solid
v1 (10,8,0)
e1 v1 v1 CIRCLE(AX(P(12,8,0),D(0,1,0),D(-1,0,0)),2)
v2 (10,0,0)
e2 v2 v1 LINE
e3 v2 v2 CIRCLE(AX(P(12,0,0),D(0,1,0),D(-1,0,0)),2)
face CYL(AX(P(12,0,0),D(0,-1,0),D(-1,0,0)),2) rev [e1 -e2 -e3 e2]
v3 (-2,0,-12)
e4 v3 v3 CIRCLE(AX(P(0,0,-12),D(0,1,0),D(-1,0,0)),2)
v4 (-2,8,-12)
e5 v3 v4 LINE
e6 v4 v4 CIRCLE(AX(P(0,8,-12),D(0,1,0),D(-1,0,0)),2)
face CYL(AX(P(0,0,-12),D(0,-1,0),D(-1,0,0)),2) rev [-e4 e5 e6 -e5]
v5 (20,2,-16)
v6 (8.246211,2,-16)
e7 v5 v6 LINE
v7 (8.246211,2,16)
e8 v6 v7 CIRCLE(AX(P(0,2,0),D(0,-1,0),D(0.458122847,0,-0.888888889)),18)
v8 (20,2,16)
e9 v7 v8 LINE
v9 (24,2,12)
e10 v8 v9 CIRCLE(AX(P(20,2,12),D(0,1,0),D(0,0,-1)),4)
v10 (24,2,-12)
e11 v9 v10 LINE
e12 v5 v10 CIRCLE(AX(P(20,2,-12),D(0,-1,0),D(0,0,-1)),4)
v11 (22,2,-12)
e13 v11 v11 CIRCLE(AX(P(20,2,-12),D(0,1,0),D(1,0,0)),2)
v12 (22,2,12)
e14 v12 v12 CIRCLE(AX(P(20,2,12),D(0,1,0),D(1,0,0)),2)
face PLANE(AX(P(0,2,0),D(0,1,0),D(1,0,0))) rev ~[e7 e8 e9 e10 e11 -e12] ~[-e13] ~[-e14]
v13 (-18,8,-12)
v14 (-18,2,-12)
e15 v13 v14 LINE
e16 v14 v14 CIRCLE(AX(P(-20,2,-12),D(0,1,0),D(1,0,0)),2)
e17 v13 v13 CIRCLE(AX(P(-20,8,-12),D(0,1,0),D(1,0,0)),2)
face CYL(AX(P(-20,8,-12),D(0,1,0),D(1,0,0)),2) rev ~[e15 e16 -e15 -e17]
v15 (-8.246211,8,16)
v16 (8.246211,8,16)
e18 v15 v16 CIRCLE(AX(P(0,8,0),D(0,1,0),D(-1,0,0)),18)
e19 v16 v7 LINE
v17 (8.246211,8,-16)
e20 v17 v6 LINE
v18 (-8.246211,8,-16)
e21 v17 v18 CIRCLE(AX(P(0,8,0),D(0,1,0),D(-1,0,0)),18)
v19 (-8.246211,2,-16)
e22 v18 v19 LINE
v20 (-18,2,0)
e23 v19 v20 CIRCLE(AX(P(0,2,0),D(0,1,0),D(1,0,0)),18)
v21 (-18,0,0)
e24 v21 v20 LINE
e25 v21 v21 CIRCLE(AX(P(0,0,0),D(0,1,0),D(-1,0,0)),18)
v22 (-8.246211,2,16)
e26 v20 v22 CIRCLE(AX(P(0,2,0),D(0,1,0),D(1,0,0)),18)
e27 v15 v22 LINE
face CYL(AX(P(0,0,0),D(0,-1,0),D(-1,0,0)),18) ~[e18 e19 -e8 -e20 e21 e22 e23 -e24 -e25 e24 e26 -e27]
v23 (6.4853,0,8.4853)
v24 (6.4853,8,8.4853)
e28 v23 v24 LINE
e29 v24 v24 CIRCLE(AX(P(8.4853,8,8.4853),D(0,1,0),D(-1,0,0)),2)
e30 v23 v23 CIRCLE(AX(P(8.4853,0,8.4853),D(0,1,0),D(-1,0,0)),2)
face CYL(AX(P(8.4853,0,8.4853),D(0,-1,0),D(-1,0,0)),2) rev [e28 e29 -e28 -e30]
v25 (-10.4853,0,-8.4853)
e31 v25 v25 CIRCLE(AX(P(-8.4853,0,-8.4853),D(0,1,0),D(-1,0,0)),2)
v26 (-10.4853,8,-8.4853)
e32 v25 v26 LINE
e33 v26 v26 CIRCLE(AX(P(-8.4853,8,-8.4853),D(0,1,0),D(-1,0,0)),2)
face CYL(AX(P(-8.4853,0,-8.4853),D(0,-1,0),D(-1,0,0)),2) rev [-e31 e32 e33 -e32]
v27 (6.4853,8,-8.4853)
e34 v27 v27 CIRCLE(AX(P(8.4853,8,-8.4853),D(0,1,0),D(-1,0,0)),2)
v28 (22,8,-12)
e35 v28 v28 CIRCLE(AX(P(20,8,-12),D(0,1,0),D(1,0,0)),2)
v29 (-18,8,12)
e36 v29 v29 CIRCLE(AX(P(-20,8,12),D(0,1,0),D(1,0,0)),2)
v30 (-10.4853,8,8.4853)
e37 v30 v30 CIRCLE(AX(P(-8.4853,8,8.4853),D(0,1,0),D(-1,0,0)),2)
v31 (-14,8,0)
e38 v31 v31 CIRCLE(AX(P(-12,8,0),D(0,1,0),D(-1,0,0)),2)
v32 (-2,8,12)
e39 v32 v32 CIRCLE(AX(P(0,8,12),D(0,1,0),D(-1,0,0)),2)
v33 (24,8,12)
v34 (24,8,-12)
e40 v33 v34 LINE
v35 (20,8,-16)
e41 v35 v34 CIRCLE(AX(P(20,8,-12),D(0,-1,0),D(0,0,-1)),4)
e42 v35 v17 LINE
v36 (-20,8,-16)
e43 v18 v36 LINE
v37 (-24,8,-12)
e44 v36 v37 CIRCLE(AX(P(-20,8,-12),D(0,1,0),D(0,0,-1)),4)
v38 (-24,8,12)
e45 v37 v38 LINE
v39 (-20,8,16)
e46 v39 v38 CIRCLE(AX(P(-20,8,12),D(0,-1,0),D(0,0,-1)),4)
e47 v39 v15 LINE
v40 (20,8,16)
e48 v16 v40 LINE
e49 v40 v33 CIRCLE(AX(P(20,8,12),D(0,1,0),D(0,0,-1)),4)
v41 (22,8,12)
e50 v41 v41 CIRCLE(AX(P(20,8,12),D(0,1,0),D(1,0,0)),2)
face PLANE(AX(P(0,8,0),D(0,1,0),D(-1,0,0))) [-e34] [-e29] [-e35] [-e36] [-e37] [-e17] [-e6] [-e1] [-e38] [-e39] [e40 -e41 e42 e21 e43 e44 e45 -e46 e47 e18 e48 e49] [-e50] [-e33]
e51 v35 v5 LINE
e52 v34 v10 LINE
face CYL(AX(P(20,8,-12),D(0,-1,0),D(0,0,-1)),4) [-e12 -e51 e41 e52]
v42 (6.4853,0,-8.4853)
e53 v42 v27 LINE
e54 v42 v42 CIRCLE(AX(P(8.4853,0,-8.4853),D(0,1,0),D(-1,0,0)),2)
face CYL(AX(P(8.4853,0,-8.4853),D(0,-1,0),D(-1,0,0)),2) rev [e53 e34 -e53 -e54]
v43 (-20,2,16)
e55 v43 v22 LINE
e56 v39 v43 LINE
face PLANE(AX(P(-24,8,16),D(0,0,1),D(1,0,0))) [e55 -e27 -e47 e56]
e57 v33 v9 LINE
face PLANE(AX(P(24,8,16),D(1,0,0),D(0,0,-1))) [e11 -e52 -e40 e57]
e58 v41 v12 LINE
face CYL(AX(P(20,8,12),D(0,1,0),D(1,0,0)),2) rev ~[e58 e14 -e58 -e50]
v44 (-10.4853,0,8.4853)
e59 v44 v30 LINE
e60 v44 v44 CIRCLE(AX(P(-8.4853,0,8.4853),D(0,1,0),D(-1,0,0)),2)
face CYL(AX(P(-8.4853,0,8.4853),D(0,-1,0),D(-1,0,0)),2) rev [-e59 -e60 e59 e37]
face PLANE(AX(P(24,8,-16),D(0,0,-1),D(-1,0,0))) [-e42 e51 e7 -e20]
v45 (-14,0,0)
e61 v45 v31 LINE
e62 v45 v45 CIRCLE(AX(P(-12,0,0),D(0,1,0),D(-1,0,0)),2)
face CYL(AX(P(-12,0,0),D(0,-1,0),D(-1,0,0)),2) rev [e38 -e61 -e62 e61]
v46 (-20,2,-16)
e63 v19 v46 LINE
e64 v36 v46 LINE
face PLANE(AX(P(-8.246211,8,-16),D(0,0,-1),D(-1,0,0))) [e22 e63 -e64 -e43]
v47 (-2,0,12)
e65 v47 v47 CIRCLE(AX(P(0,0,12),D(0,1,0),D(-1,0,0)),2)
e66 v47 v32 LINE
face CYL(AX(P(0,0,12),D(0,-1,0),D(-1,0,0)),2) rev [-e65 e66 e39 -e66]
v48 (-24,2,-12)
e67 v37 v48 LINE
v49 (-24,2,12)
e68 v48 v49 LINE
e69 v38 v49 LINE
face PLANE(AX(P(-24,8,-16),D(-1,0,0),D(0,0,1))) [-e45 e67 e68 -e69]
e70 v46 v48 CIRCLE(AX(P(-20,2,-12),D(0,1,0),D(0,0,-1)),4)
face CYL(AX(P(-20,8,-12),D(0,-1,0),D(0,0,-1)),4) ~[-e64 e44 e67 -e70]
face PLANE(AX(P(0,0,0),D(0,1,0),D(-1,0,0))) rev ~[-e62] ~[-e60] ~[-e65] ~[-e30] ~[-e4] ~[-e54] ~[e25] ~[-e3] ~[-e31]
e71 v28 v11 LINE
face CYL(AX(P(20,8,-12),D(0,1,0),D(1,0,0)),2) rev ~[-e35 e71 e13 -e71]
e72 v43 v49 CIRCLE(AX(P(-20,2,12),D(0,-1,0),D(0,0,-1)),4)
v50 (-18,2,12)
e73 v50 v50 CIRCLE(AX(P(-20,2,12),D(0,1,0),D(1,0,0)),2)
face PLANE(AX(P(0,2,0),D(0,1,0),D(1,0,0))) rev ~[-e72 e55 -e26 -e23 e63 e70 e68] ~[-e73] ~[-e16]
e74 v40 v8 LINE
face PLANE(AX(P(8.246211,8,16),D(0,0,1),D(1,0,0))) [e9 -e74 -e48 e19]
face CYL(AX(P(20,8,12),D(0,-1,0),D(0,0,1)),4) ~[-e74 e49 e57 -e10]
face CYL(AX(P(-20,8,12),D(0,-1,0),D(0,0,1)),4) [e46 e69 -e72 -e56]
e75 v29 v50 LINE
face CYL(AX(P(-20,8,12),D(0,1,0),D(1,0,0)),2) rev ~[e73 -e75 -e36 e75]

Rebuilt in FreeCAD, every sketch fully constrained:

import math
import FreeCAD as App
import Part
import Sketcher

V = App.Vector
Q = App.Units.Quantity


def edges_at(feature, points):
    """Names of the edges that pass closest to the given points."""
    edges = feature.Shape.Edges
    near = lambda p: min(range(len(edges)), key=lambda i: edges[i].distToShape(Part.Vertex(*p))[0])
    return sorted({f"Edge{near(p) + 1}" for p in points})

doc = App.newDocument("Part")
params = doc.addObject("Spreadsheet::Sheet", "Params")
for row, (alias, value) in enumerate([
    ("sketch1_diameter", "36 mm"),
    ("sketch1_diameter2", "4 mm"),
    ("pad1_length", "8 mm"),
    ("sketch2_diameter", "4 mm"),
    ("sketch2_height", "32 mm"),
    ("sketch2_radius", "18 mm"),
    ("pad2_length", "6 mm"),
    ("fillet_radius", "4 mm"),
], start=1):
    params.set(f"A{row}", alias)
    params.set(f"B{row}", "=" + value)
    params.setAlias(f"B{row}", alias)

body = doc.addObject("PartDesign::Body", "Body")

sketch1 = doc.addObject("Sketcher::SketchObject", "Sketch")
body.addObject(sketch1)
sketch1.AttachmentSupport = (doc.XZ_Plane, [""])
sketch1.MapMode = "FlatFace"
sketch1.addGeometry(Part.Circle(V(0, 0, 0), V(0, 0, 1), 18), False)
sketch1.addGeometry(Part.Circle(V(8.5, -8.5, 0), V(0, 0, 1), 2), False)
sketch1.addGeometry(Part.Circle(V(0, -12, 0), V(0, 0, 1), 2), False)
sketch1.addGeometry(Part.Circle(V(-8.5, -8.5, 0), V(0, 0, 1), 2), False)
sketch1.addGeometry(Part.Circle(V(12, 0, 0), V(0, 0, 1), 2), False)
sketch1.addGeometry(Part.Circle(V(8.5, 8.5, 0), V(0, 0, 1), 2), False)
sketch1.addGeometry(Part.Circle(V(-8.5, 8.5, 0), V(0, 0, 1), 2), False)
sketch1.addGeometry(Part.Circle(V(-12, 0, 0), V(0, 0, 1), 2), False)
sketch1.addGeometry(Part.Circle(V(0, 12, 0), V(0, 0, 1), 2), False)
sketch1.addConstraint(Sketcher.Constraint("Coincident", 0, 3, -1, 1))
sketch1.addConstraint(Sketcher.Constraint("Equal", 1, 2))
sketch1.addConstraint(Sketcher.Constraint("Equal", 2, 3))
sketch1.addConstraint(Sketcher.Constraint("Equal", 3, 4))
sketch1.addConstraint(Sketcher.Constraint("Equal", 4, 5))
sketch1.addConstraint(Sketcher.Constraint("Equal", 5, 6))
sketch1.addConstraint(Sketcher.Constraint("Equal", 6, 7))
sketch1.addConstraint(Sketcher.Constraint("Equal", 7, 8))
sketch1.addConstraint(Sketcher.Constraint("Symmetric", 3, 3, 5, 3, -1, 1))
sketch1.addConstraint(Sketcher.Constraint("Symmetric", 1, 3, 6, 3, -1, 1))
sketch1.addConstraint(Sketcher.Constraint("Symmetric", 4, 3, 7, 3, -1, 1))
sketch1.addConstraint(Sketcher.Constraint("Symmetric", 2, 3, 8, 3, -1, 1))
sketch1.addConstraint(Sketcher.Constraint("Symmetric", 1, 3, 3, 3, -2))
sketch1.addConstraint(Sketcher.Constraint("PointOnObject", 2, 3, -2))
sketch1.addConstraint(Sketcher.Constraint("PointOnObject", 4, 3, -1))
sketch1.addConstraint(Sketcher.Constraint("Diameter", 0, Q("36 mm")))
sketch1.addConstraint(Sketcher.Constraint("Diameter", 1, Q("4 mm")))
sketch1.addConstraint(Sketcher.Constraint("DistanceY", 2, 3, -1, 1, Q("12 mm")))
sketch1.addConstraint(Sketcher.Constraint("DistanceX", -1, 1, 4, 3, Q("12 mm")))
sketch1.addConstraint(Sketcher.Constraint("DistanceX", -1, 1, 1, 3, Q("8.4853 mm")))
sketch1.addConstraint(Sketcher.Constraint("DistanceY", 1, 3, -1, 1, Q("8.4853 mm")))
sketch1.setExpression("Constraints[15]", "Params.sketch1_diameter")
sketch1.setExpression("Constraints[16]", "Params.sketch1_diameter2")
pad1 = doc.addObject("PartDesign::Pad", "Pad")
body.addObject(pad1)
pad1.Profile = sketch1
pad1.setExpression("Length", "Params.pad1_length")
pad1.Reversed = True

sketch2 = doc.addObject("Sketcher::SketchObject", "Sketch001")
body.addObject(sketch2)
sketch2.AttachmentSupport = (doc.XZ_Plane, [""])
sketch2.MapMode = "FlatFace"
sketch2.AttachmentOffset = App.Placement(V(0, 0, -8), App.Rotation())
sketch2.addGeometry(Part.LineSegment(V(-24, -16, 0), V(-24, 16, 0)), False)
sketch2.addGeometry(Part.LineSegment(V(-24, 16, 0), V(-8.2, 16, 0)), False)
sketch2.addGeometry(Part.ArcOfCircle(Part.Circle(V(0, 0, 0), V(0, 0, 1), 18), math.radians(117), math.radians(243)), False)
sketch2.addGeometry(Part.LineSegment(V(-8.2, -16, 0), V(-24, -16, 0)), False)
sketch2.addGeometry(Part.Circle(V(-20, 12, 0), V(0, 0, 1), 2), False)
sketch2.addGeometry(Part.Circle(V(-20, -12, 0), V(0, 0, 1), 2), False)
sketch2.addGeometry(Part.ArcOfCircle(Part.Circle(V(0, 0, 0), V(0, 0, 1), 18), math.radians(-63), math.radians(63)), False)
sketch2.addGeometry(Part.LineSegment(V(8.2, 16, 0), V(24, 16, 0)), False)
sketch2.addGeometry(Part.LineSegment(V(24, 16, 0), V(24, -16, 0)), False)
sketch2.addGeometry(Part.LineSegment(V(24, -16, 0), V(8.2, -16, 0)), False)
sketch2.addGeometry(Part.Circle(V(20, 12, 0), V(0, 0, 1), 2), False)
sketch2.addGeometry(Part.Circle(V(20, -12, 0), V(0, 0, 1), 2), False)
sketch2.addConstraint(Sketcher.Constraint("Coincident", 0, 2, 1, 1))
sketch2.addConstraint(Sketcher.Constraint("Coincident", 1, 2, 2, 1))
sketch2.addConstraint(Sketcher.Constraint("Coincident", 2, 2, 3, 1))
sketch2.addConstraint(Sketcher.Constraint("Coincident", 3, 2, 0, 1))
sketch2.addConstraint(Sketcher.Constraint("Coincident", 6, 2, 7, 1))
sketch2.addConstraint(Sketcher.Constraint("Coincident", 7, 2, 8, 1))
sketch2.addConstraint(Sketcher.Constraint("Coincident", 8, 2, 9, 1))
sketch2.addConstraint(Sketcher.Constraint("Coincident", 9, 2, 6, 1))
sketch2.addConstraint(Sketcher.Constraint("Vertical", 0))
sketch2.addConstraint(Sketcher.Constraint("Horizontal", 1))
sketch2.addConstraint(Sketcher.Constraint("Horizontal", 3))
sketch2.addConstraint(Sketcher.Constraint("Horizontal", 7))
sketch2.addConstraint(Sketcher.Constraint("Vertical", 8))
sketch2.addConstraint(Sketcher.Constraint("Horizontal", 9))
sketch2.addConstraint(Sketcher.Constraint("Coincident", 2, 3, -1, 1))
sketch2.addConstraint(Sketcher.Constraint("Coincident", 6, 3, -1, 1))
sketch2.addConstraint(Sketcher.Constraint("Equal", 4, 5))
sketch2.addConstraint(Sketcher.Constraint("Equal", 2, 6))
sketch2.addConstraint(Sketcher.Constraint("Equal", 5, 10))
sketch2.addConstraint(Sketcher.Constraint("Equal", 10, 11))
sketch2.addConstraint(Sketcher.Constraint("Symmetric", 5, 3, 10, 3, -1, 1))
sketch2.addConstraint(Sketcher.Constraint("Symmetric", 4, 3, 11, 3, -1, 1))
sketch2.addConstraint(Sketcher.Constraint("Symmetric", 3, 2, 7, 2, -1, 1))
sketch2.addConstraint(Sketcher.Constraint("Symmetric", 4, 3, 10, 3, -2))
sketch2.addConstraint(Sketcher.Constraint("Horizontal", 1, 2, 6, 2))
sketch2.addConstraint(Sketcher.Constraint("Horizontal", 3, 2, 8, 2))
sketch2.addConstraint(Sketcher.Constraint("Diameter", 4, Q("4 mm")))
sketch2.addConstraint(Sketcher.Constraint("DistanceY", 0, 1, 0, 2, Q("32 mm")))
sketch2.addConstraint(Sketcher.Constraint("DistanceX", 4, 3, -1, 1, Q("20 mm")))
sketch2.addConstraint(Sketcher.Constraint("DistanceY", -1, 1, 4, 3, Q("12 mm")))
sketch2.addConstraint(Sketcher.Constraint("Radius", 2, Q("18 mm")))
sketch2.addConstraint(Sketcher.Constraint("DistanceX", 0, 2, 4, 3, Q("4 mm")))
sketch2.setExpression("Constraints[26]", "Params.sketch2_diameter")
sketch2.setExpression("Constraints[27]", "Params.sketch2_height")
sketch2.setExpression("Constraints[30]", "Params.sketch2_radius")
pad2 = doc.addObject("PartDesign::Pad", "Pad001")
body.addObject(pad2)
pad2.Profile = sketch2
pad2.setExpression("Length", "Params.pad2_length")
doc.recompute()

fillet = doc.addObject("PartDesign::Fillet", "Fillet")
body.addObject(fillet)
fillet.Base = (pad2, edges_at(pad2, [
    (-24, 5, 16),
    (24, 5, 16),
    (24, 5, -16),
    (-24, 5, -16),
]))
fillet.setExpression("Radius", "Params.fillet_radius")

doc.recompute()
